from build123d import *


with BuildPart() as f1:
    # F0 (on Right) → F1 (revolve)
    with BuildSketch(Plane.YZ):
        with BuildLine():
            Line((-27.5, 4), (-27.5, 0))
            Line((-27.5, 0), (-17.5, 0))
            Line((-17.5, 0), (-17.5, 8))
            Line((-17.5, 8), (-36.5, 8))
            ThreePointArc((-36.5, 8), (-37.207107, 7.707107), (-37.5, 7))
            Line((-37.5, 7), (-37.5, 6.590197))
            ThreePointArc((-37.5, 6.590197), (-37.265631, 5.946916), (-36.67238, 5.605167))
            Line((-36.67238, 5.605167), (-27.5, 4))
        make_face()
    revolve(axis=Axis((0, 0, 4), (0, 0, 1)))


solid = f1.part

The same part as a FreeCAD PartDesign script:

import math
import FreeCAD as App
import Part
import Sketcher
from FreeCAD import Vector
Q = App.Units.Quantity

doc = App.newDocument("Part")
body = doc.addObject("PartDesign::Body", "Body")

sketch1 = doc.addObject("Sketcher::SketchObject", "Sketch")
body.addObject(sketch1)
sketch1.AttachmentSupport = (doc.YZ_Plane, [""])
sketch1.MapMode = "FlatFace"
sketch1.addGeometry([
    Part.LineSegment(Vector(-27.5, 4, 0), Vector(-27.5, 0, 0)),
    Part.LineSegment(Vector(-27.5, 0, 0), Vector(-17.5, 0, 0)),
    Part.LineSegment(Vector(-17.5, 0, 0), Vector(-17.5, 8, 0)),
    Part.LineSegment(Vector(-17.5, 8, 0), Vector(-36.5, 8, 0)),
    Part.ArcOfCircle(Part.Circle(Vector(-36.5, 7, 0), Vector(0, 0, 1), 1), math.radians(90), math.radians(180)),
    Part.LineSegment(Vector(-37.5, 7, 0), Vector(-37.5, 6.59, 0)),
    Part.ArcOfCircle(Part.Circle(Vector(-36.5, 6.59, 0), Vector(0, 0, 1), 1), math.radians(180), math.radians(260)),
    Part.LineSegment(Vector(-36.67, 5.61, 0), Vector(-27.5, 4, 0)),
], False)
sketch1.addConstraint([
    Sketcher.Constraint("Coincident", 0, 2, 1, 1),
    Sketcher.Constraint("Coincident", 1, 2, 2, 1),
    Sketcher.Constraint("Coincident", 2, 2, 3, 1),
    Sketcher.Constraint("Tangent", 3, 2, 4, 1),
    Sketcher.Constraint("Tangent", 4, 2, 5, 1),
    Sketcher.Constraint("Coincident", 5, 2, 6, 1),
    Sketcher.Constraint("Coincident", 6, 2, 7, 1),
    Sketcher.Constraint("Coincident", 7, 2, 0, 1),
    Sketcher.Constraint("Vertical", 0),
    Sketcher.Constraint("Horizontal", 1),
    Sketcher.Constraint("Vertical", 2),
    Sketcher.Constraint("Horizontal", 3),
    Sketcher.Constraint("Vertical", 5),
    Sketcher.Constraint("PointOnObject", 0, 2, -1),
    Sketcher.Constraint("Radius", 4, Q("0.999999 mm")),
    Sketcher.Constraint("DistanceX", 1, 1, 1, 2, Q("10 mm")),
    Sketcher.Constraint("DistanceX", 3, 2, 3, 1, Q("19 mm")),
    Sketcher.Constraint("DistanceY", 0, 2, 0, 1, Q("4 mm")),
    Sketcher.Constraint("DistanceY", 2, 1, 2, 2, Q("8 mm")),
    Sketcher.Constraint("DistanceX", 4, 3, -1, 1, Q("36.500001 mm")),
    Sketcher.Constraint("Radius", 6, Q("0.999997 mm")),
    Sketcher.Constraint("DistanceY", 5, 2, 5, 1, Q("0.409803 mm")),
    Sketcher.Constraint("DistanceX", 6, 2, -1, 1, Q("36.67238 mm")),
    Sketcher.Constraint("DistanceY", 6, 2, 5, 2, Q("0.98503 mm")),
])
revolution = doc.addObject("PartDesign::Revolution", "Revolution")
body.addObject(revolution)
revolution.Profile = sketch1
revolution.ReferenceAxis = (sketch1, ["V_Axis"])
revolution.Angle = 360

doc.recompute()
